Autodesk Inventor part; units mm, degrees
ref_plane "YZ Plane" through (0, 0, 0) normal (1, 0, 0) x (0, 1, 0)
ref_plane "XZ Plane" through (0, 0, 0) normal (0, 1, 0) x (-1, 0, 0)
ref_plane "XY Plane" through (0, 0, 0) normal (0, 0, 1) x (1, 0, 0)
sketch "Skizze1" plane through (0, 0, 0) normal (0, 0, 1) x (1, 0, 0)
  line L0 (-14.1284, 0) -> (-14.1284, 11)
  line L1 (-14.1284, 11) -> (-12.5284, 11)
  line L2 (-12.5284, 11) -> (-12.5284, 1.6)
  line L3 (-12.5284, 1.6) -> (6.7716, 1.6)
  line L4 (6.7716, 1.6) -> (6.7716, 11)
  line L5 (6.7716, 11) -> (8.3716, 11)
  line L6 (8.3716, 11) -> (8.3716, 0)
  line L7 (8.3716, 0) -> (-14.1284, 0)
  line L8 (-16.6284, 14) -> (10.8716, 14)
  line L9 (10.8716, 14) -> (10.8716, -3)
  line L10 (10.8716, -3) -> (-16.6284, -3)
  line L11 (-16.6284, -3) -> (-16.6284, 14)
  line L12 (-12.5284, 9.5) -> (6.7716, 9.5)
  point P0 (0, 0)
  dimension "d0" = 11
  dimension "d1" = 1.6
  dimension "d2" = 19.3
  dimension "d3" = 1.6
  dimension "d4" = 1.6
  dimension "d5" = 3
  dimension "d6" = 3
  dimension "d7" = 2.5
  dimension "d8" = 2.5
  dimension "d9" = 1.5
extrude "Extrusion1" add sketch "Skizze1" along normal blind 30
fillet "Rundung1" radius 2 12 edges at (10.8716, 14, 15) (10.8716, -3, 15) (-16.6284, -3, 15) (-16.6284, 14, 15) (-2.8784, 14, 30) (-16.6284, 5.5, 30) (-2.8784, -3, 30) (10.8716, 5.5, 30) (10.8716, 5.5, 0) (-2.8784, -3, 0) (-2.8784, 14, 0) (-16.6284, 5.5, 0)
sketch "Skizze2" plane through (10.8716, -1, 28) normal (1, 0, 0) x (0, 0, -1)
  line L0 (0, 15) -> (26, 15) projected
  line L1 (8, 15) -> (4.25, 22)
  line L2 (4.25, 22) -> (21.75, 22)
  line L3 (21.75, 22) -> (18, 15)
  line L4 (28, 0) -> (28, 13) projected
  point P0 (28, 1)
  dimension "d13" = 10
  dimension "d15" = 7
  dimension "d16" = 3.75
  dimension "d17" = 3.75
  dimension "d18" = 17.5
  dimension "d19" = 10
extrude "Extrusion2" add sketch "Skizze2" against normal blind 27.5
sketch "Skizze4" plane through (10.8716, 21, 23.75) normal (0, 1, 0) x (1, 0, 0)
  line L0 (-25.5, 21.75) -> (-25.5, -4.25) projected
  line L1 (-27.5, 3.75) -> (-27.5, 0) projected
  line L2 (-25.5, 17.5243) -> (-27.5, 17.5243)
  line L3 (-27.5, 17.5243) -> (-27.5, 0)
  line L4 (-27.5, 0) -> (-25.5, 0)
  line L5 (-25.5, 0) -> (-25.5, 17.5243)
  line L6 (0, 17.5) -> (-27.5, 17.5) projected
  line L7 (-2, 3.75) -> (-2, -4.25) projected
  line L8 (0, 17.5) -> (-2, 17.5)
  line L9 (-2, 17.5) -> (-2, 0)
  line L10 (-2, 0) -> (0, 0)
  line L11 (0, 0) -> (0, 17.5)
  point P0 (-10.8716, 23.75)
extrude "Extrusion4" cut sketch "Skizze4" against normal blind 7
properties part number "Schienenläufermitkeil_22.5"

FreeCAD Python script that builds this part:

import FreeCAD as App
import Part
import Sketcher


def edges_at(feature, points):
    """Names of the edges that pass closest to the given points."""
    edges = feature.Shape.Edges
    near = lambda p: min(range(len(edges)), key=lambda i: edges[i].distToShape(Part.Vertex(*p))[0])
    return sorted({f"Edge{near(p) + 1}" for p in points})


def add_polygon(sketch, points):
    """Adds a closed chain of lines whose ends are joined by coincident constraints."""
    first, n = sketch.GeometryCount, len(points)
    for a, b in zip(points, points[1:] + points[:1]):
        sketch.addGeometry(Part.LineSegment(App.Vector(*a, 0), App.Vector(*b, 0)), False)
    for i in range(n):
        sketch.addConstraint(Sketcher.Constraint("Coincident", first + i, 2, first + (i + 1) % n, 1))

doc = App.newDocument("Part")
body = doc.addObject("PartDesign::Body", "Body")

# Sketch on XY plane
sketch1 = body.newObject("Sketcher::SketchObject", "Sketch")
sketch1.AttachmentSupport = (doc.getObject("XY_Plane"), [""])
sketch1.MapMode = "FlatFace"
add_polygon(sketch1, [(10.9, 14), (-16.6, 14), (-16.6, -3), (10.9, -3)])  # lines 0-3
add_polygon(sketch1, [(8.4, 0), (-14.1, 0), (-14.1, 11), (-12.5, 11), (-12.5, 9.5), (6.8, 9.5), (6.8, 11), (8.4, 11)])  # lines 4-11
sketch1.addConstraint(Sketcher.Constraint("Horizontal", 0))
sketch1.addConstraint(Sketcher.Constraint("Vertical", 1))
sketch1.addConstraint(Sketcher.Constraint("Horizontal", 2))
sketch1.addConstraint(Sketcher.Constraint("Vertical", 3))
sketch1.addConstraint(Sketcher.Constraint("Horizontal", 4))
sketch1.addConstraint(Sketcher.Constraint("Vertical", 5))
sketch1.addConstraint(Sketcher.Constraint("Horizontal", 6))
sketch1.addConstraint(Sketcher.Constraint("Vertical", 7))
sketch1.addConstraint(Sketcher.Constraint("Horizontal", 8))
sketch1.addConstraint(Sketcher.Constraint("Vertical", 9))
sketch1.addConstraint(Sketcher.Constraint("Horizontal", 10))
sketch1.addConstraint(Sketcher.Constraint("Vertical", 11))
sketch1.addConstraint(Sketcher.Constraint("PointOnObject", 4, 2, -1))
sketch1.addConstraint(Sketcher.Constraint("Horizontal", 6, 2, 9, 2))
sketch1.addConstraint(Sketcher.Constraint("Equal", 6, 10))
sketch1.addConstraint(Sketcher.Constraint("DistanceY", 5, 1, 5, 2, 11.0))
sketch1.addConstraint(Sketcher.Constraint("DistanceX", 6, 1, 6, 2, 1.6))
sketch1.addConstraint(Sketcher.Constraint("DistanceX", 8, 1, 8, 2, 19.3))
sketch1.addConstraint(Sketcher.Constraint("DistanceY", 7, 2, 7, 1, 1.5))
sketch1.addConstraint(Sketcher.Constraint("DistanceY", 1, 2, -1, 1, 3.0))
sketch1.addConstraint(Sketcher.Constraint("DistanceY", 5, 2, 0, 2, 3.0))
sketch1.addConstraint(Sketcher.Constraint("DistanceX", 1, 2, 4, 2, 2.5))
sketch1.addConstraint(Sketcher.Constraint("DistanceX", 10, 2, 3, 2, 2.5))
sketch1.addConstraint(Sketcher.Constraint("DistanceX", 0, 2, -1, 1, 16.6284))
pad1 = body.newObject("PartDesign::Pad", "Pad")
pad1.Profile = sketch1
pad1.Length = 30
doc.recompute()

fillet = body.newObject("PartDesign::Fillet", "Fillet")
fillet.Base = (pad1, edges_at(pad1, [
    (10.872, 14, 15),
    (10.872, -3, 15),
    (-16.628, -3, 15),
    (-16.628, 14, 15),
    (-2.878, 14, 30),
    (-16.628, 5.5, 30),
    (-2.878, -3, 30),
    (10.872, 5.5, 30),
    (10.872, 5.5, 0),
    (-2.878, -3, 0),
    (-2.878, 14, 0),
    (-16.628, 5.5, 0),
]))
fillet.Radius = 2

# Sketch on YZ plane
sketch2 = body.newObject("Sketcher::SketchObject", "Sketch001")
sketch2.AttachmentSupport = (doc.getObject("YZ_Plane"), [""])
sketch2.MapMode = "FlatFace"
sketch2.AttachmentOffset = App.Placement(App.Vector(0, 0, 10.8716), App.Rotation())
add_polygon(sketch2, [(21, 24), (14, 20), (14, 10), (21, 6)])  # lines 0-3
sketch2.addConstraint(Sketcher.Constraint("Vertical", 1))
sketch2.addConstraint(Sketcher.Constraint("Vertical", 3))
sketch2.addConstraint(Sketcher.Constraint("Equal", 0, 2))
sketch2.addConstraint(Sketcher.Constraint("DistanceY", 1, 2, 1, 1, 10.0))
sketch2.addConstraint(Sketcher.Constraint("DistanceY", 3, 1, 3, 2, 17.5))
sketch2.addConstraint(Sketcher.Constraint("DistanceY", -1, 1, 1, 2, 10.0))
sketch2.addConstraint(Sketcher.Constraint("DistanceX", 1, 2, 2, 2, 7.0))
sketch2.addConstraint(Sketcher.Constraint("DistanceX", -1, 1, 0, 2, 14.0))
pad2 = body.newObject("PartDesign::Pad", "Pad001")
pad2.Profile = sketch2
pad2.Length = 27.5
pad2.Reversed = True

# Sketch on XZ plane
sketch3 = body.newObject("Sketcher::SketchObject", "Sketch002")
sketch3.AttachmentSupport = (doc.getObject("XZ_Plane"), [""])
sketch3.MapMode = "FlatFace"
sketch3.AttachmentOffset = App.Placement(App.Vector(0, 0, -21), App.Rotation())
add_polygon(sketch3, [(10.9, 6.2), (8.9, 6.2), (8.9, 23.8), (10.9, 23.8)])  # lines 0-3
add_polygon(sketch3, [(-14.6, 6.2), (-16.6, 6.2), (-16.6, 23.8), (-14.6, 23.8)])  # lines 4-7
sketch3.addConstraint(Sketcher.Constraint("Horizontal", 0))
sketch3.addConstraint(Sketcher.Constraint("Vertical", 1))
sketch3.addConstraint(Sketcher.Constraint("Horizontal", 2))
sketch3.addConstraint(Sketcher.Constraint("Vertical", 3))
sketch3.addConstraint(Sketcher.Constraint("Horizontal", 4))
sketch3.addConstraint(Sketcher.Constraint("Vertical", 5))
sketch3.addConstraint(Sketcher.Constraint("Horizontal", 6))
sketch3.addConstraint(Sketcher.Constraint("Vertical", 7))
sketch3.addConstraint(Sketcher.Constraint("Horizontal", 2, 2, 5, 2))
sketch3.addConstraint(Sketcher.Constraint("Equal", 2, 4))
sketch3.addConstraint(Sketcher.Constraint("DistanceX", 0, 2, 0, 1, 2.0))
sketch3.addConstraint(Sketcher.Constraint("DistanceY", 1, 1, 1, 2, 17.5))
sketch3.addConstraint(Sketcher.Constraint("DistanceX", 4, 2, 0, 2, 25.5))
sketch3.addConstraint(Sketcher.Constraint("DistanceY", -1, 1, 0, 2, 6.25))
sketch3.addConstraint(Sketcher.Constraint("DistanceY", 5, 1, 5, 2, 17.5243))
sketch3.addConstraint(Sketcher.Constraint("DistanceX", -1, 1, 0, 2, 8.8716))
pocket1 = body.newObject("PartDesign::Pocket", "Pocket")
pocket1.Profile = sketch3
pocket1.Length = 7
pocket1.Reversed = True

doc.recompute()
